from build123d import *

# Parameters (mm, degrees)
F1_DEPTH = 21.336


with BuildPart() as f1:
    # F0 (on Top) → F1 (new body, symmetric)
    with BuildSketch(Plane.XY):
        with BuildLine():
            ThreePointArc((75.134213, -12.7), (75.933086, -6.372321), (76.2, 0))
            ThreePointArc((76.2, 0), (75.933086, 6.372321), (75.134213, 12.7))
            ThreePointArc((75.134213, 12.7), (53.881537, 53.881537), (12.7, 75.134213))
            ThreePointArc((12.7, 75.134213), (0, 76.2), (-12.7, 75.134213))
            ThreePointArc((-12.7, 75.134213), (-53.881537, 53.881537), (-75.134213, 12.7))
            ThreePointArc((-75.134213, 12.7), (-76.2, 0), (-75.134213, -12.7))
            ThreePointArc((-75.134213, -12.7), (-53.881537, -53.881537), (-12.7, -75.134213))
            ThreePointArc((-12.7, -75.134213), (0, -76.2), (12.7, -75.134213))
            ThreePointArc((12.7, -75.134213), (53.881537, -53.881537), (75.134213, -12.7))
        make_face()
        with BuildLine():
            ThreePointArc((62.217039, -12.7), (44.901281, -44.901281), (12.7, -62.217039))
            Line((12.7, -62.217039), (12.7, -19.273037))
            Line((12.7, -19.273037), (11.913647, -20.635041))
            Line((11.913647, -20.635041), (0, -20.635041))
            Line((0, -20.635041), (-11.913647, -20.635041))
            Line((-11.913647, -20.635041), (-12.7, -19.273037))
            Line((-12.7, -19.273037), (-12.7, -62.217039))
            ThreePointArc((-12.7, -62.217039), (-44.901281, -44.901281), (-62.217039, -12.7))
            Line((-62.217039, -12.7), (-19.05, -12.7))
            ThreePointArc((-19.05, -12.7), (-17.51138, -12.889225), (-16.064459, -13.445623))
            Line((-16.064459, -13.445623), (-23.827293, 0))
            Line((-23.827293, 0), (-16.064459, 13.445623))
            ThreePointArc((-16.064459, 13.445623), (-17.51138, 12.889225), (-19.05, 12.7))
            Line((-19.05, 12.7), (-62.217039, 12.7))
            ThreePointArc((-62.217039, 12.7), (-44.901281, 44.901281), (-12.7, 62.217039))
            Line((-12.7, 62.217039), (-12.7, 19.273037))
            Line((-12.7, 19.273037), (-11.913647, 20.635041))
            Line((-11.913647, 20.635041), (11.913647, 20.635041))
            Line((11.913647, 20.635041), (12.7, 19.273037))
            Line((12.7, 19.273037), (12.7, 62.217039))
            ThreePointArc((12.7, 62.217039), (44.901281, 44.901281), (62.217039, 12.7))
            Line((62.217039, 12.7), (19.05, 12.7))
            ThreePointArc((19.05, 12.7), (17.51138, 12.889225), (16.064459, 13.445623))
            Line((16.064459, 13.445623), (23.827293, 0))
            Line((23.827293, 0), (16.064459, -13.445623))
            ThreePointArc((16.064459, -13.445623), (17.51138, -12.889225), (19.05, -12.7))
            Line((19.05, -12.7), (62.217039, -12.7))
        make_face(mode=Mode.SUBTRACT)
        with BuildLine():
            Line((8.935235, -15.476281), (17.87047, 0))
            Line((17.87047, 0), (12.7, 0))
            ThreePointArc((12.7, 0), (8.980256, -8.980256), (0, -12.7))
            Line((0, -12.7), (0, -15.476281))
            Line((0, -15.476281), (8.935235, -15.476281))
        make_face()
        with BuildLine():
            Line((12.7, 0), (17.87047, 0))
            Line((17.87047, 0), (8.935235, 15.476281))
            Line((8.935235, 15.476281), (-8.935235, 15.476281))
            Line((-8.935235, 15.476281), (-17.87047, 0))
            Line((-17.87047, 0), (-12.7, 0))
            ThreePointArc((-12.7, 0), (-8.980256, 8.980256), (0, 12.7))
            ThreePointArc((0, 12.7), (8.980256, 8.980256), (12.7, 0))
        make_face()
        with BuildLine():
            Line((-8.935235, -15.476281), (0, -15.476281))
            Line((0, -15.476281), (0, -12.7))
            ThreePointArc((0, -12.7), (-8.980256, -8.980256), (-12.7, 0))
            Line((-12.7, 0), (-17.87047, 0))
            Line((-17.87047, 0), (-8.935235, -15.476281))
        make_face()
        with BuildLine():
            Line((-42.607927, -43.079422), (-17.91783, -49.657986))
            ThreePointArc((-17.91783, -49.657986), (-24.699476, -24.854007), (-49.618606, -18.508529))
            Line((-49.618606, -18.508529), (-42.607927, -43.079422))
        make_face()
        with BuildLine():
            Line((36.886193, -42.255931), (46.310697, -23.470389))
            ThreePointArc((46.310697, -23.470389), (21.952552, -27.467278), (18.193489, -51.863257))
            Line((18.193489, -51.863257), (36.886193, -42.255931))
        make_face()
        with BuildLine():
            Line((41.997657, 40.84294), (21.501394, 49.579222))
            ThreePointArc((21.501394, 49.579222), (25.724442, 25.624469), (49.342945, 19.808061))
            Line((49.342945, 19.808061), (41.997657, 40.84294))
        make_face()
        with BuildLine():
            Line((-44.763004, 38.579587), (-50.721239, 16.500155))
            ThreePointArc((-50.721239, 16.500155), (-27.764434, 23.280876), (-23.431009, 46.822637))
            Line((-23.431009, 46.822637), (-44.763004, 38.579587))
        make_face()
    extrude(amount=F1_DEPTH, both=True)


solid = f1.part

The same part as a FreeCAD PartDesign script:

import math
import FreeCAD as App
import Part
import Sketcher
from FreeCAD import Vector
Q = App.Units.Quantity

doc = App.newDocument("Part")
params = doc.addObject("Spreadsheet::Sheet", "Params")
for row, (alias, value) in enumerate([
    ("sketch1_radius", "2.9999999 in"),
    ("sketch1_radius2", "0.5 in"),
    ("sketch1_radius3", "0.5 in"),
    ("sketch1_radius4", "0.2499998 in"),
    ("sketch1_radius5", "0.2499998 in"),
    ("pad1_length", "1.68 in"),
], start=1):
    params.set(f"A{row}", alias)
    params.set(f"B{row}", "=" + value)
    params.setAlias(f"B{row}", alias)

body = doc.addObject("PartDesign::Body", "Body")
body.AllowCompound = True

# Sketch on XY plane
sketch1 = body.newObject("Sketcher::SketchObject", "Sketch")
sketch1.AttachmentSupport = (doc.getObject("XY_Plane"), [""])
sketch1.MapMode = "FlatFace"
sketch1.addGeometry([
    Part.ArcOfCircle(Part.Circle(Vector(0.00008, -0.000005, 0), Vector(0, 0, 1), 76.19992), math.radians(-9.594074), math.radians(0.000004)),  # 0
    Part.ArcOfCircle(Part.Circle(Vector(0.00008, 0.000005, 0), Vector(0, 0, 1), 76.19992), math.radians(-0.000004), math.radians(9.594074)),  # 1
    Part.ArcOfCircle(Part.Circle(Vector(0.000002, 0.000002, 0), Vector(0, 0, 1), 76.199997), math.radians(9.594067), math.radians(80.405933)),  # 2
    Part.ArcOfCircle(Part.Circle(Vector(0, 0.000017, 0), Vector(0, 0, 1), 76.199983), math.radians(80.40593), math.radians(99.59407)),  # 3
    Part.ArcOfCircle(Part.Circle(Vector(-0.000002, 0.000002, 0), Vector(0, 0, 1), 76.199997), math.radians(99.594067), math.radians(170.405933)),  # 4
    Part.ArcOfCircle(Part.Circle(Vector(-0.000017, 0, 0), Vector(0, 0, 1), 76.199983), math.radians(170.40593), math.radians(189.59407)),  # 5
    Part.ArcOfCircle(Part.Circle(Vector(-0.000002, -0.000002, 0), Vector(0, 0, 1), 76.199997), math.radians(-170.405933), math.radians(-99.594067)),  # 6
    Part.ArcOfCircle(Part.Circle(Vector(0, -0.000017, 0), Vector(0, 0, 1), 76.199983), math.radians(-99.59407), math.radians(-80.40593)),  # 7
    Part.ArcOfCircle(Part.Circle(Vector(0.000002, -0.000002, 0), Vector(0, 0, 1), 76.199997), math.radians(-80.405933), math.radians(-9.594067)),  # 8
    Part.LineSegment(Vector(19.05, -12.7, 0), Vector(62.217039, -12.7, 0)),  # 9
    Part.ArcOfCircle(Part.Circle(Vector(0.000004, -0.000004, 0), Vector(0, 0, 1), 63.499994), math.radians(-78.463044), math.radians(-11.536956)),  # 10
    Part.LineSegment(Vector(12.7, -62.217039, 0), Vector(12.7, -19.273037, 0)),  # 11
    Part.LineSegment(Vector(12.7, -19.273037, 0), Vector(11.913647, -20.635041, 0)),  # 12
    Part.LineSegment(Vector(11.913647, -20.635041, 0), Vector(-11.913647, -20.635041, 0)),  # 13
    Part.LineSegment(Vector(-11.913647, -20.635041, 0), Vector(-12.7, -19.273037, 0)),  # 14
    Part.LineSegment(Vector(-12.7, -19.273037, 0), Vector(-12.7, -62.217039, 0)),  # 15
    Part.ArcOfCircle(Part.Circle(Vector(-0.000004, -0.000004, 0), Vector(0, 0, 1), 63.499994), math.radians(-168.463044), math.radians(-101.536956)),  # 16
    Part.LineSegment(Vector(-62.217039, -12.7, 0), Vector(-19.05, -12.7, 0)),  # 17
    Part.ArcOfCircle(Part.Circle(Vector(-19.049999, -19.049995, 0), Vector(0, 0, 1), 6.349995), math.radians(61.955045), math.radians(90.000006)),  # 18
    Part.LineSegment(Vector(-16.064459, -13.445623, 0), Vector(-23.827293, 0, 0)),  # 19
    Part.LineSegment(Vector(-23.827293, 0, 0), Vector(-16.064459, 13.445623, 0)),  # 20
    Part.ArcOfCircle(Part.Circle(Vector(-19.049999, 19.049995, 0), Vector(0, 0, 1), 6.349995), math.radians(-90.000006), math.radians(-61.955045)),  # 21
    Part.LineSegment(Vector(-19.05, 12.7, 0), Vector(-62.217039, 12.7, 0)),  # 22
    Part.ArcOfCircle(Part.Circle(Vector(-0.000004, 0.000004, 0), Vector(0, 0, 1), 63.499994), math.radians(101.536956), math.radians(168.463044)),  # 23
    Part.LineSegment(Vector(-12.7, 62.217039, 0), Vector(-12.7, 19.273037, 0)),  # 24
    Part.LineSegment(Vector(-12.7, 19.273037, 0), Vector(-11.913647, 20.635041, 0)),  # 25
    Part.LineSegment(Vector(-11.913647, 20.635041, 0), Vector(11.913647, 20.635041, 0)),  # 26
    Part.LineSegment(Vector(11.913647, 20.635041, 0), Vector(12.7, 19.273037, 0)),  # 27
    Part.LineSegment(Vector(12.7, 19.273037, 0), Vector(12.7, 62.217039, 0)),  # 28
    Part.ArcOfCircle(Part.Circle(Vector(0.000004, 0.000004, 0), Vector(0, 0, 1), 63.499994), math.radians(11.536956), math.radians(78.463044)),  # 29
    Part.LineSegment(Vector(62.217039, 12.7, 0), Vector(19.05, 12.7, 0)),  # 30
    Part.ArcOfCircle(Part.Circle(Vector(19.049999, 19.049995, 0), Vector(0, 0, 1), 6.349995), math.radians(-118.044955), math.radians(-89.999994)),  # 31
    Part.LineSegment(Vector(16.064459, 13.445623, 0), Vector(23.827293, 0, 0)),  # 32
    Part.LineSegment(Vector(23.827293, 0, 0), Vector(16.064459, -13.445623, 0)),  # 33
    Part.ArcOfCircle(Part.Circle(Vector(19.049999, -19.049995, 0), Vector(0, 0, 1), 6.349995), math.radians(89.999994), math.radians(118.044955)),  # 34
    Part.LineSegment(Vector(8.935235, -15.476281, 0), Vector(17.87047, 0, 0)),  # 35
    Part.LineSegment(Vector(17.87047, 0, 0), Vector(8.935235, 15.476281, 0)),  # 36
    Part.LineSegment(Vector(8.935235, 15.476281, 0), Vector(-8.935235, 15.476281, 0)),  # 37
    Part.LineSegment(Vector(-8.935235, 15.476281, 0), Vector(-17.87047, 0, 0)),  # 38
    Part.LineSegment(Vector(-17.87047, 0, 0), Vector(-8.935235, -15.476281, 0)),  # 39
    Part.LineSegment(Vector(-8.935235, -15.476281, 0), Vector(8.935235, -15.476281, 0)),  # 40
    Part.ArcOfCircle(Part.Circle(Vector(0, 0, 0), Vector(0, 0, 1), 12.7), math.radians(90.000002), math.radians(179.999998)),  # 41
    Part.ArcOfCircle(Part.Circle(Vector(0, 0, 0), Vector(0, 0, 1), 12.7), math.radians(0.000002), math.radians(89.999998)),  # 42
    Part.ArcOfCircle(Part.Circle(Vector(0, 0, 0), Vector(0, 0, 1), 12.7), math.radians(-89.999998), math.radians(-0.000002)),  # 43
    Part.ArcOfCircle(Part.Circle(Vector(0, 0, 0), Vector(0, 0, 1), 12.7), math.radians(-179.999998), math.radians(-90.000002)),  # 44
    Part.LineSegment(Vector(-42.607927, -43.079422, 0), Vector(-17.91783, -49.657986, 0)),  # 45
    Part.ArcOfCircle(Part.Circle(Vector(-42.607928, -43.079423, 0), Vector(0, 0, 1), 25.551486), math.radians(-14.919581), math.radians(105.924747)),  # 46
    Part.LineSegment(Vector(-49.618606, -18.508529, 0), Vector(-42.607927, -43.079422, 0)),  # 47
    Part.LineSegment(Vector(36.886193, -42.255931, 0), Vector(46.310697, -23.470389, 0)),  # 48
    Part.ArcOfCircle(Part.Circle(Vector(36.886192, -42.255931, 0), Vector(0, 0, 1), 21.017085), math.radians(63.357571), math.radians(207.20141)),  # 49
    Part.LineSegment(Vector(18.193489, -51.863257, 0), Vector(36.886193, -42.255931, 0)),  # 50
    Part.LineSegment(Vector(41.997657, 40.84294, 0), Vector(21.501394, 49.579222, 0)),  # 51
    Part.ArcOfCircle(Part.Circle(Vector(41.997657, 40.842941, 0), Vector(0, 0, 1), 22.280472), math.radians(156.914466), math.radians(289.248978)),  # 52
    Part.LineSegment(Vector(49.342945, 19.808061, 0), Vector(41.997657, 40.84294, 0)),  # 53
    Part.LineSegment(Vector(-44.763004, 38.579587, 0), Vector(-50.721239, 16.500155, 0)),  # 54
    Part.ArcOfCircle(Part.Circle(Vector(-44.763002, 38.579585, 0), Vector(0, 0, 1), 22.869233), math.radians(-105.101812), math.radians(21.127395)),  # 55
    Part.LineSegment(Vector(-23.431009, 46.822637, 0), Vector(-44.763004, 38.579587, 0)),  # 56
], False)
sketch1.addConstraint([
    Sketcher.Constraint("Coincident", 0, 2, 1, 1),
    Sketcher.Constraint("Coincident", 1, 2, 2, 1),
    Sketcher.Constraint("Coincident", 2, 2, 3, 1),
    Sketcher.Constraint("Coincident", 3, 2, 4, 1),
    Sketcher.Constraint("Coincident", 4, 2, 5, 1),
    Sketcher.Constraint("Coincident", 5, 2, 6, 1),
    Sketcher.Constraint("Coincident", 6, 2, 7, 1),
    Sketcher.Constraint("Coincident", 7, 2, 8, 1),
    Sketcher.Constraint("Coincident", 8, 2, 0, 1),
    Sketcher.Constraint("Coincident", 9, 2, 10, 2),
    Sketcher.Constraint("Coincident", 10, 1, 11, 1),
    Sketcher.Constraint("Coincident", 11, 2, 12, 1),
    Sketcher.Constraint("Coincident", 12, 2, 13, 1),
    Sketcher.Constraint("Coincident", 13, 2, 14, 1),
    Sketcher.Constraint("Coincident", 14, 2, 15, 1),
    Sketcher.Constraint("Coincident", 15, 2, 16, 2),
    Sketcher.Constraint("Coincident", 16, 1, 17, 1),
    Sketcher.Constraint("Coincident", 17, 2, 18, 2),
    Sketcher.Constraint("Coincident", 18, 1, 19, 1),
    Sketcher.Constraint("Coincident", 19, 2, 20, 1),
    Sketcher.Constraint("Coincident", 20, 2, 21, 2),
    Sketcher.Constraint("Coincident", 21, 1, 22, 1),
    Sketcher.Constraint("Coincident", 22, 2, 23, 2),
    Sketcher.Constraint("Coincident", 23, 1, 24, 1),
    Sketcher.Constraint("Coincident", 24, 2, 25, 1),
    Sketcher.Constraint("Coincident", 25, 2, 26, 1),
    Sketcher.Constraint("Coincident", 26, 2, 27, 1),
    Sketcher.Constraint("Coincident", 27, 2, 28, 1),
    Sketcher.Constraint("Coincident", 28, 2, 29, 2),
    Sketcher.Constraint("Coincident", 29, 1, 30, 1),
    Sketcher.Constraint("Coincident", 30, 2, 31, 2),
    Sketcher.Constraint("Coincident", 31, 1, 32, 1),
    Sketcher.Constraint("Coincident", 32, 2, 33, 1),
    Sketcher.Constraint("Coincident", 33, 2, 34, 2),
    Sketcher.Constraint("Coincident", 34, 1, 9, 1),
    Sketcher.Constraint("Coincident", 35, 2, 36, 1),
    Sketcher.Constraint("Coincident", 36, 2, 37, 1),
    Sketcher.Constraint("Coincident", 37, 2, 38, 1),
    Sketcher.Constraint("Coincident", 38, 2, 39, 1),
    Sketcher.Constraint("Coincident", 39, 2, 40, 1),
    Sketcher.Constraint("Coincident", 40, 2, 35, 1),
    Sketcher.Constraint("Coincident", 41, 1, 42, 2),
    Sketcher.Constraint("Coincident", 42, 1, 43, 2),
    Sketcher.Constraint("Coincident", 43, 1, 44, 2),
    Sketcher.Constraint("Coincident", 44, 1, 41, 2),
    Sketcher.Constraint("Coincident", 45, 2, 46, 1),
    Sketcher.Constraint("Coincident", 46, 2, 47, 1),
    Sketcher.Constraint("Coincident", 47, 2, 45, 1),
    Sketcher.Constraint("Coincident", 48, 2, 49, 1),
    Sketcher.Constraint("Coincident", 49, 2, 50, 1),
    Sketcher.Constraint("Coincident", 50, 2, 48, 1),
    Sketcher.Constraint("Coincident", 51, 2, 52, 1),
    Sketcher.Constraint("Coincident", 52, 2, 53, 1),
    Sketcher.Constraint("Coincident", 53, 2, 51, 1),
    Sketcher.Constraint("Coincident", 54, 2, 55, 1),
    Sketcher.Constraint("Coincident", 55, 2, 56, 1),
    Sketcher.Constraint("Coincident", 56, 2, 54, 1),
    Sketcher.Constraint("Horizontal", 9),
    Sketcher.Constraint("Vertical", 11),
    Sketcher.Constraint("Horizontal", 13),
    Sketcher.Constraint("Vertical", 15),
    Sketcher.Constraint("Horizontal", 17),
    Sketcher.Constraint("Horizontal", 22),
    Sketcher.Constraint("Vertical", 24),
    Sketcher.Constraint("Horizontal", 26),
    Sketcher.Constraint("Vertical", 28),
    Sketcher.Constraint("Horizontal", 30),
    Sketcher.Constraint("Horizontal", 37),
    Sketcher.Constraint("Horizontal", 40),
    Sketcher.Constraint("Coincident", 2, 3, -1, 1),
    Sketcher.Constraint("Coincident", 4, 3, -1, 1),
    Sketcher.Constraint("Coincident", 6, 3, -1, 1),
    Sketcher.Constraint("Coincident", 8, 3, -1, 1),
    Sketcher.Constraint("Coincident", 10, 3, -1, 1),
    Sketcher.Constraint("Coincident", 16, 3, -1, 1),
    Sketcher.Constraint("Coincident", 23, 3, -1, 1),
    Sketcher.Constraint("Coincident", 29, 3, -1, 1),
    Sketcher.Constraint("Coincident", 41, 3, -1, 1),
    Sketcher.Constraint("Coincident", 42, 3, -1, 1),
    Sketcher.Constraint("Coincident", 43, 3, -1, 1),
    Sketcher.Constraint("Coincident", 47, 2, 46, 3),
    Sketcher.Constraint("Coincident", 50, 2, 49, 3),
    Sketcher.Constraint("Coincident", 53, 2, 52, 3),
    Sketcher.Constraint("Coincident", 56, 2, 55, 3),
    Sketcher.Constraint("PointOnObject", 3, 3, -2),
    Sketcher.Constraint("PointOnObject", 5, 3, -1),
    Sketcher.Constraint("PointOnObject", 7, 3, -2),
    Sketcher.Constraint("PointOnObject", 0, 2, -1),
    Sketcher.Constraint("PointOnObject", 19, 2, -1),
    Sketcher.Constraint("PointOnObject", 32, 2, -1),
    Sketcher.Constraint("PointOnObject", 35, 2, -1),
    Sketcher.Constraint("PointOnObject", 38, 2, -1),
    Sketcher.Constraint("PointOnObject", 41, 1, -2),
    Sketcher.Constraint("PointOnObject", 42, 1, -1),
    Sketcher.Constraint("PointOnObject", 43, 1, -2),
    Sketcher.Constraint("PointOnObject", 44, 1, -1),
    Sketcher.Constraint("Radius", 2, Q("2.9999999 in")),
    Sketcher.Constraint("Radius", 41, Q("0.5 in")),
    Sketcher.Constraint("Radius", 44, Q("0.5 in")),
    Sketcher.Constraint("Radius", 18, Q("0.2499998 in")),
    Sketcher.Constraint("Radius", 21, Q("0.2499998 in")),
    Sketcher.Constraint("Radius", 31, Q("0.2499998 in")),
    Sketcher.Constraint("Radius", 34, Q("0.2499998 in")),
    Sketcher.Constraint("DistanceX", -1, 1, 0, 2, Q("3 in")),
    Sketcher.Constraint("DistanceY", -1, 1, 1, 2, Q("0.5 in")),
    Sketcher.Constraint("DistanceX", -1, 1, 2, 2, Q("0.5 in")),
    Sketcher.Constraint("DistanceX", 3, 2, -1, 1, Q("0.5 in")),
    Sketcher.Constraint("DistanceY", -1, 1, 4, 2, Q("0.5 in")),
    Sketcher.Constraint("DistanceY", 5, 2, -1, 1, Q("0.5 in")),
    Sketcher.Constraint("DistanceX", 6, 2, -1, 1, Q("0.5 in")),
    Sketcher.Constraint("DistanceX", -1, 1, 7, 2, Q("0.5 in")),
    Sketcher.Constraint("DistanceY", 8, 2, -1, 1, Q("0.5 in")),
    Sketcher.Constraint("DistanceY", 9, 2, -1, 1, Q("0.5 in")),
    Sketcher.Constraint("DistanceX", -1, 1, 10, 1, Q("0.5 in")),
    Sketcher.Constraint("DistanceX", 14, 2, -1, 1, Q("0.5 in")),
    Sketcher.Constraint("DistanceY", 16, 1, -1, 1, Q("0.5 in")),
    Sketcher.Constraint("DistanceY", -1, 1, 21, 1, Q("0.5 in")),
    Sketcher.Constraint("DistanceX", 23, 1, -1, 1, Q("0.5 in")),
    Sketcher.Constraint("DistanceX", -1, 1, 27, 2, Q("0.5 in")),
    Sketcher.Constraint("DistanceY", -1, 1, 29, 1, Q("0.5 in")),
    Sketcher.Constraint("DistanceX", 18, 3, -1, 1, Q("0.75 in")),
    Sketcher.Constraint("DistanceX", 21, 3, -1, 1, Q("0.75 in")),
    Sketcher.Constraint("DistanceX", -1, 1, 31, 3, Q("0.75 in")),
    Sketcher.Constraint("DistanceX", -1, 1, 34, 3, Q("0.75 in")),
    Sketcher.Constraint("DistanceX", 17, 2, -1, 1, Q("0.75 in")),
    Sketcher.Constraint("DistanceX", 21, 1, -1, 1, Q("0.75 in")),
    Sketcher.Constraint("DistanceX", -1, 1, 30, 2, Q("0.75 in")),
    Sketcher.Constraint("DistanceX", -1, 1, 34, 1, Q("0.75 in")),
    Sketcher.Constraint("Radius", 0, 76.19992),
    Sketcher.Constraint("Radius", 1, 76.19992),
    Sketcher.Constraint("Radius", 52, 22.280472),
    Sketcher.Constraint("DistanceY", 11, 1, 11, 2, 42.944002),
    Sketcher.Constraint("DistanceY", 15, 2, 15, 1, 42.944002),
    Sketcher.Constraint("DistanceY", 24, 2, 24, 1, 42.944002),
    Sketcher.Constraint("DistanceY", 28, 1, 28, 2, 42.944002),
    Sketcher.Constraint("Radius", 3, 76.199983),
    Sketcher.Constraint("Radius", 5, 76.199983),
    Sketcher.Constraint("Radius", 7, 76.199983),
    Sketcher.Constraint("Radius", 10, 63.499994),
    Sketcher.Constraint("Radius", 16, 63.499994),
    Sketcher.Constraint("Radius", 23, 63.499994),
    Sketcher.Constraint("Radius", 29, 63.499994),
    Sketcher.Constraint("Radius", 46, 25.551486),
    Sketcher.Constraint("Radius", 49, 21.017085),
    Sketcher.Constraint("Radius", 55, 22.869233),
    Sketcher.Constraint("DistanceX", 37, 2, 37, 1, 17.87047),
    Sketcher.Constraint("DistanceX", 40, 1, 40, 2, 17.87047),
    Sketcher.Constraint("Distance", 19, 15.525668),
    Sketcher.Constraint("Distance", 20, 15.525668),
    Sketcher.Constraint("Distance", 32, 15.525668),
    Sketcher.Constraint("Distance", 33, 15.525668),
    Sketcher.Constraint("Distance", 35, 17.87047),
    Sketcher.Constraint("Distance", 36, 17.87047),
    Sketcher.Constraint("Distance", 38, 17.87047),
    Sketcher.Constraint("Distance", 39, 17.87047),
    Sketcher.Constraint("DistanceX", 13, 2, 13, 1, 23.827294),
    Sketcher.Constraint("DistanceX", 26, 1, 26, 2, 23.827294),
    Sketcher.Constraint("DistanceY", 49, 3, -1, 1, 42.255931),
    Sketcher.Constraint("DistanceY", -1, 1, 52, 3, 40.842941),
    Sketcher.Constraint("DistanceY", 12, 2, -1, 1, 20.635041),
    Sketcher.Constraint("DistanceX", 18, 1, -1, 1, 16.064459),
    Sketcher.Constraint("DistanceY", -1, 1, 25, 2, 20.635041),
    Sketcher.Constraint("DistanceX", -1, 1, 31, 1, 16.064459),
    Sketcher.Constraint("DistanceX", -1, 1, 35, 2, 17.87047),
    Sketcher.Constraint("DistanceY", -1, 1, 36, 2, 15.476281),
    Sketcher.Constraint("DistanceX", 45, 2, -1, 1, 17.91783),
    Sketcher.Constraint("DistanceY", 46, 2, -1, 1, 18.508529),
    Sketcher.Constraint("DistanceY", 48, 2, -1, 1, 23.470389),
    Sketcher.Constraint("DistanceX", -1, 1, 49, 2, 18.193489),
    Sketcher.Constraint("DistanceY", -1, 1, 52, 2, 19.808061),
    Sketcher.Constraint("DistanceX", 54, 2, -1, 1, 50.721239),
    Sketcher.Constraint("DistanceX", 55, 2, -1, 1, 23.431009),
    Sketcher.Constraint("Distance", 12, 1.572707),
    Sketcher.Constraint("Distance", 25, 1.572707),
    Sketcher.Constraint("DistanceX", 46, 3, -1, 1, 42.607928),
    Sketcher.Constraint("DistanceY", 46, 3, -1, 1, 43.079423),
    Sketcher.Constraint("DistanceX", -1, 1, 49, 3, 36.886192),
    Sketcher.Constraint("DistanceX", -1, 1, 52, 3, 41.997657),
    Sketcher.Constraint("DistanceX", 55, 3, -1, 1, 44.763002),
    Sketcher.Constraint("DistanceY", -1, 1, 55, 3, 38.579585),
    Sketcher.Constraint("DistanceX", -1, 1, 51, 2, 21.501394),
])
sketch1.setExpression("Constraints[96]", "Params.sketch1_radius")
sketch1.setExpression("Constraints[97]", "Params.sketch1_radius2")
sketch1.setExpression("Constraints[98]", "Params.sketch1_radius3")
sketch1.setExpression("Constraints[99]", "Params.sketch1_radius4")
sketch1.setExpression("Constraints[100]", "Params.sketch1_radius5")
pad1 = body.newObject("PartDesign::Pad", "Pad")
pad1.Profile = sketch1
pad1.setExpression("Length", "Params.pad1_length")
pad1.Midplane = True

doc.recompute()
